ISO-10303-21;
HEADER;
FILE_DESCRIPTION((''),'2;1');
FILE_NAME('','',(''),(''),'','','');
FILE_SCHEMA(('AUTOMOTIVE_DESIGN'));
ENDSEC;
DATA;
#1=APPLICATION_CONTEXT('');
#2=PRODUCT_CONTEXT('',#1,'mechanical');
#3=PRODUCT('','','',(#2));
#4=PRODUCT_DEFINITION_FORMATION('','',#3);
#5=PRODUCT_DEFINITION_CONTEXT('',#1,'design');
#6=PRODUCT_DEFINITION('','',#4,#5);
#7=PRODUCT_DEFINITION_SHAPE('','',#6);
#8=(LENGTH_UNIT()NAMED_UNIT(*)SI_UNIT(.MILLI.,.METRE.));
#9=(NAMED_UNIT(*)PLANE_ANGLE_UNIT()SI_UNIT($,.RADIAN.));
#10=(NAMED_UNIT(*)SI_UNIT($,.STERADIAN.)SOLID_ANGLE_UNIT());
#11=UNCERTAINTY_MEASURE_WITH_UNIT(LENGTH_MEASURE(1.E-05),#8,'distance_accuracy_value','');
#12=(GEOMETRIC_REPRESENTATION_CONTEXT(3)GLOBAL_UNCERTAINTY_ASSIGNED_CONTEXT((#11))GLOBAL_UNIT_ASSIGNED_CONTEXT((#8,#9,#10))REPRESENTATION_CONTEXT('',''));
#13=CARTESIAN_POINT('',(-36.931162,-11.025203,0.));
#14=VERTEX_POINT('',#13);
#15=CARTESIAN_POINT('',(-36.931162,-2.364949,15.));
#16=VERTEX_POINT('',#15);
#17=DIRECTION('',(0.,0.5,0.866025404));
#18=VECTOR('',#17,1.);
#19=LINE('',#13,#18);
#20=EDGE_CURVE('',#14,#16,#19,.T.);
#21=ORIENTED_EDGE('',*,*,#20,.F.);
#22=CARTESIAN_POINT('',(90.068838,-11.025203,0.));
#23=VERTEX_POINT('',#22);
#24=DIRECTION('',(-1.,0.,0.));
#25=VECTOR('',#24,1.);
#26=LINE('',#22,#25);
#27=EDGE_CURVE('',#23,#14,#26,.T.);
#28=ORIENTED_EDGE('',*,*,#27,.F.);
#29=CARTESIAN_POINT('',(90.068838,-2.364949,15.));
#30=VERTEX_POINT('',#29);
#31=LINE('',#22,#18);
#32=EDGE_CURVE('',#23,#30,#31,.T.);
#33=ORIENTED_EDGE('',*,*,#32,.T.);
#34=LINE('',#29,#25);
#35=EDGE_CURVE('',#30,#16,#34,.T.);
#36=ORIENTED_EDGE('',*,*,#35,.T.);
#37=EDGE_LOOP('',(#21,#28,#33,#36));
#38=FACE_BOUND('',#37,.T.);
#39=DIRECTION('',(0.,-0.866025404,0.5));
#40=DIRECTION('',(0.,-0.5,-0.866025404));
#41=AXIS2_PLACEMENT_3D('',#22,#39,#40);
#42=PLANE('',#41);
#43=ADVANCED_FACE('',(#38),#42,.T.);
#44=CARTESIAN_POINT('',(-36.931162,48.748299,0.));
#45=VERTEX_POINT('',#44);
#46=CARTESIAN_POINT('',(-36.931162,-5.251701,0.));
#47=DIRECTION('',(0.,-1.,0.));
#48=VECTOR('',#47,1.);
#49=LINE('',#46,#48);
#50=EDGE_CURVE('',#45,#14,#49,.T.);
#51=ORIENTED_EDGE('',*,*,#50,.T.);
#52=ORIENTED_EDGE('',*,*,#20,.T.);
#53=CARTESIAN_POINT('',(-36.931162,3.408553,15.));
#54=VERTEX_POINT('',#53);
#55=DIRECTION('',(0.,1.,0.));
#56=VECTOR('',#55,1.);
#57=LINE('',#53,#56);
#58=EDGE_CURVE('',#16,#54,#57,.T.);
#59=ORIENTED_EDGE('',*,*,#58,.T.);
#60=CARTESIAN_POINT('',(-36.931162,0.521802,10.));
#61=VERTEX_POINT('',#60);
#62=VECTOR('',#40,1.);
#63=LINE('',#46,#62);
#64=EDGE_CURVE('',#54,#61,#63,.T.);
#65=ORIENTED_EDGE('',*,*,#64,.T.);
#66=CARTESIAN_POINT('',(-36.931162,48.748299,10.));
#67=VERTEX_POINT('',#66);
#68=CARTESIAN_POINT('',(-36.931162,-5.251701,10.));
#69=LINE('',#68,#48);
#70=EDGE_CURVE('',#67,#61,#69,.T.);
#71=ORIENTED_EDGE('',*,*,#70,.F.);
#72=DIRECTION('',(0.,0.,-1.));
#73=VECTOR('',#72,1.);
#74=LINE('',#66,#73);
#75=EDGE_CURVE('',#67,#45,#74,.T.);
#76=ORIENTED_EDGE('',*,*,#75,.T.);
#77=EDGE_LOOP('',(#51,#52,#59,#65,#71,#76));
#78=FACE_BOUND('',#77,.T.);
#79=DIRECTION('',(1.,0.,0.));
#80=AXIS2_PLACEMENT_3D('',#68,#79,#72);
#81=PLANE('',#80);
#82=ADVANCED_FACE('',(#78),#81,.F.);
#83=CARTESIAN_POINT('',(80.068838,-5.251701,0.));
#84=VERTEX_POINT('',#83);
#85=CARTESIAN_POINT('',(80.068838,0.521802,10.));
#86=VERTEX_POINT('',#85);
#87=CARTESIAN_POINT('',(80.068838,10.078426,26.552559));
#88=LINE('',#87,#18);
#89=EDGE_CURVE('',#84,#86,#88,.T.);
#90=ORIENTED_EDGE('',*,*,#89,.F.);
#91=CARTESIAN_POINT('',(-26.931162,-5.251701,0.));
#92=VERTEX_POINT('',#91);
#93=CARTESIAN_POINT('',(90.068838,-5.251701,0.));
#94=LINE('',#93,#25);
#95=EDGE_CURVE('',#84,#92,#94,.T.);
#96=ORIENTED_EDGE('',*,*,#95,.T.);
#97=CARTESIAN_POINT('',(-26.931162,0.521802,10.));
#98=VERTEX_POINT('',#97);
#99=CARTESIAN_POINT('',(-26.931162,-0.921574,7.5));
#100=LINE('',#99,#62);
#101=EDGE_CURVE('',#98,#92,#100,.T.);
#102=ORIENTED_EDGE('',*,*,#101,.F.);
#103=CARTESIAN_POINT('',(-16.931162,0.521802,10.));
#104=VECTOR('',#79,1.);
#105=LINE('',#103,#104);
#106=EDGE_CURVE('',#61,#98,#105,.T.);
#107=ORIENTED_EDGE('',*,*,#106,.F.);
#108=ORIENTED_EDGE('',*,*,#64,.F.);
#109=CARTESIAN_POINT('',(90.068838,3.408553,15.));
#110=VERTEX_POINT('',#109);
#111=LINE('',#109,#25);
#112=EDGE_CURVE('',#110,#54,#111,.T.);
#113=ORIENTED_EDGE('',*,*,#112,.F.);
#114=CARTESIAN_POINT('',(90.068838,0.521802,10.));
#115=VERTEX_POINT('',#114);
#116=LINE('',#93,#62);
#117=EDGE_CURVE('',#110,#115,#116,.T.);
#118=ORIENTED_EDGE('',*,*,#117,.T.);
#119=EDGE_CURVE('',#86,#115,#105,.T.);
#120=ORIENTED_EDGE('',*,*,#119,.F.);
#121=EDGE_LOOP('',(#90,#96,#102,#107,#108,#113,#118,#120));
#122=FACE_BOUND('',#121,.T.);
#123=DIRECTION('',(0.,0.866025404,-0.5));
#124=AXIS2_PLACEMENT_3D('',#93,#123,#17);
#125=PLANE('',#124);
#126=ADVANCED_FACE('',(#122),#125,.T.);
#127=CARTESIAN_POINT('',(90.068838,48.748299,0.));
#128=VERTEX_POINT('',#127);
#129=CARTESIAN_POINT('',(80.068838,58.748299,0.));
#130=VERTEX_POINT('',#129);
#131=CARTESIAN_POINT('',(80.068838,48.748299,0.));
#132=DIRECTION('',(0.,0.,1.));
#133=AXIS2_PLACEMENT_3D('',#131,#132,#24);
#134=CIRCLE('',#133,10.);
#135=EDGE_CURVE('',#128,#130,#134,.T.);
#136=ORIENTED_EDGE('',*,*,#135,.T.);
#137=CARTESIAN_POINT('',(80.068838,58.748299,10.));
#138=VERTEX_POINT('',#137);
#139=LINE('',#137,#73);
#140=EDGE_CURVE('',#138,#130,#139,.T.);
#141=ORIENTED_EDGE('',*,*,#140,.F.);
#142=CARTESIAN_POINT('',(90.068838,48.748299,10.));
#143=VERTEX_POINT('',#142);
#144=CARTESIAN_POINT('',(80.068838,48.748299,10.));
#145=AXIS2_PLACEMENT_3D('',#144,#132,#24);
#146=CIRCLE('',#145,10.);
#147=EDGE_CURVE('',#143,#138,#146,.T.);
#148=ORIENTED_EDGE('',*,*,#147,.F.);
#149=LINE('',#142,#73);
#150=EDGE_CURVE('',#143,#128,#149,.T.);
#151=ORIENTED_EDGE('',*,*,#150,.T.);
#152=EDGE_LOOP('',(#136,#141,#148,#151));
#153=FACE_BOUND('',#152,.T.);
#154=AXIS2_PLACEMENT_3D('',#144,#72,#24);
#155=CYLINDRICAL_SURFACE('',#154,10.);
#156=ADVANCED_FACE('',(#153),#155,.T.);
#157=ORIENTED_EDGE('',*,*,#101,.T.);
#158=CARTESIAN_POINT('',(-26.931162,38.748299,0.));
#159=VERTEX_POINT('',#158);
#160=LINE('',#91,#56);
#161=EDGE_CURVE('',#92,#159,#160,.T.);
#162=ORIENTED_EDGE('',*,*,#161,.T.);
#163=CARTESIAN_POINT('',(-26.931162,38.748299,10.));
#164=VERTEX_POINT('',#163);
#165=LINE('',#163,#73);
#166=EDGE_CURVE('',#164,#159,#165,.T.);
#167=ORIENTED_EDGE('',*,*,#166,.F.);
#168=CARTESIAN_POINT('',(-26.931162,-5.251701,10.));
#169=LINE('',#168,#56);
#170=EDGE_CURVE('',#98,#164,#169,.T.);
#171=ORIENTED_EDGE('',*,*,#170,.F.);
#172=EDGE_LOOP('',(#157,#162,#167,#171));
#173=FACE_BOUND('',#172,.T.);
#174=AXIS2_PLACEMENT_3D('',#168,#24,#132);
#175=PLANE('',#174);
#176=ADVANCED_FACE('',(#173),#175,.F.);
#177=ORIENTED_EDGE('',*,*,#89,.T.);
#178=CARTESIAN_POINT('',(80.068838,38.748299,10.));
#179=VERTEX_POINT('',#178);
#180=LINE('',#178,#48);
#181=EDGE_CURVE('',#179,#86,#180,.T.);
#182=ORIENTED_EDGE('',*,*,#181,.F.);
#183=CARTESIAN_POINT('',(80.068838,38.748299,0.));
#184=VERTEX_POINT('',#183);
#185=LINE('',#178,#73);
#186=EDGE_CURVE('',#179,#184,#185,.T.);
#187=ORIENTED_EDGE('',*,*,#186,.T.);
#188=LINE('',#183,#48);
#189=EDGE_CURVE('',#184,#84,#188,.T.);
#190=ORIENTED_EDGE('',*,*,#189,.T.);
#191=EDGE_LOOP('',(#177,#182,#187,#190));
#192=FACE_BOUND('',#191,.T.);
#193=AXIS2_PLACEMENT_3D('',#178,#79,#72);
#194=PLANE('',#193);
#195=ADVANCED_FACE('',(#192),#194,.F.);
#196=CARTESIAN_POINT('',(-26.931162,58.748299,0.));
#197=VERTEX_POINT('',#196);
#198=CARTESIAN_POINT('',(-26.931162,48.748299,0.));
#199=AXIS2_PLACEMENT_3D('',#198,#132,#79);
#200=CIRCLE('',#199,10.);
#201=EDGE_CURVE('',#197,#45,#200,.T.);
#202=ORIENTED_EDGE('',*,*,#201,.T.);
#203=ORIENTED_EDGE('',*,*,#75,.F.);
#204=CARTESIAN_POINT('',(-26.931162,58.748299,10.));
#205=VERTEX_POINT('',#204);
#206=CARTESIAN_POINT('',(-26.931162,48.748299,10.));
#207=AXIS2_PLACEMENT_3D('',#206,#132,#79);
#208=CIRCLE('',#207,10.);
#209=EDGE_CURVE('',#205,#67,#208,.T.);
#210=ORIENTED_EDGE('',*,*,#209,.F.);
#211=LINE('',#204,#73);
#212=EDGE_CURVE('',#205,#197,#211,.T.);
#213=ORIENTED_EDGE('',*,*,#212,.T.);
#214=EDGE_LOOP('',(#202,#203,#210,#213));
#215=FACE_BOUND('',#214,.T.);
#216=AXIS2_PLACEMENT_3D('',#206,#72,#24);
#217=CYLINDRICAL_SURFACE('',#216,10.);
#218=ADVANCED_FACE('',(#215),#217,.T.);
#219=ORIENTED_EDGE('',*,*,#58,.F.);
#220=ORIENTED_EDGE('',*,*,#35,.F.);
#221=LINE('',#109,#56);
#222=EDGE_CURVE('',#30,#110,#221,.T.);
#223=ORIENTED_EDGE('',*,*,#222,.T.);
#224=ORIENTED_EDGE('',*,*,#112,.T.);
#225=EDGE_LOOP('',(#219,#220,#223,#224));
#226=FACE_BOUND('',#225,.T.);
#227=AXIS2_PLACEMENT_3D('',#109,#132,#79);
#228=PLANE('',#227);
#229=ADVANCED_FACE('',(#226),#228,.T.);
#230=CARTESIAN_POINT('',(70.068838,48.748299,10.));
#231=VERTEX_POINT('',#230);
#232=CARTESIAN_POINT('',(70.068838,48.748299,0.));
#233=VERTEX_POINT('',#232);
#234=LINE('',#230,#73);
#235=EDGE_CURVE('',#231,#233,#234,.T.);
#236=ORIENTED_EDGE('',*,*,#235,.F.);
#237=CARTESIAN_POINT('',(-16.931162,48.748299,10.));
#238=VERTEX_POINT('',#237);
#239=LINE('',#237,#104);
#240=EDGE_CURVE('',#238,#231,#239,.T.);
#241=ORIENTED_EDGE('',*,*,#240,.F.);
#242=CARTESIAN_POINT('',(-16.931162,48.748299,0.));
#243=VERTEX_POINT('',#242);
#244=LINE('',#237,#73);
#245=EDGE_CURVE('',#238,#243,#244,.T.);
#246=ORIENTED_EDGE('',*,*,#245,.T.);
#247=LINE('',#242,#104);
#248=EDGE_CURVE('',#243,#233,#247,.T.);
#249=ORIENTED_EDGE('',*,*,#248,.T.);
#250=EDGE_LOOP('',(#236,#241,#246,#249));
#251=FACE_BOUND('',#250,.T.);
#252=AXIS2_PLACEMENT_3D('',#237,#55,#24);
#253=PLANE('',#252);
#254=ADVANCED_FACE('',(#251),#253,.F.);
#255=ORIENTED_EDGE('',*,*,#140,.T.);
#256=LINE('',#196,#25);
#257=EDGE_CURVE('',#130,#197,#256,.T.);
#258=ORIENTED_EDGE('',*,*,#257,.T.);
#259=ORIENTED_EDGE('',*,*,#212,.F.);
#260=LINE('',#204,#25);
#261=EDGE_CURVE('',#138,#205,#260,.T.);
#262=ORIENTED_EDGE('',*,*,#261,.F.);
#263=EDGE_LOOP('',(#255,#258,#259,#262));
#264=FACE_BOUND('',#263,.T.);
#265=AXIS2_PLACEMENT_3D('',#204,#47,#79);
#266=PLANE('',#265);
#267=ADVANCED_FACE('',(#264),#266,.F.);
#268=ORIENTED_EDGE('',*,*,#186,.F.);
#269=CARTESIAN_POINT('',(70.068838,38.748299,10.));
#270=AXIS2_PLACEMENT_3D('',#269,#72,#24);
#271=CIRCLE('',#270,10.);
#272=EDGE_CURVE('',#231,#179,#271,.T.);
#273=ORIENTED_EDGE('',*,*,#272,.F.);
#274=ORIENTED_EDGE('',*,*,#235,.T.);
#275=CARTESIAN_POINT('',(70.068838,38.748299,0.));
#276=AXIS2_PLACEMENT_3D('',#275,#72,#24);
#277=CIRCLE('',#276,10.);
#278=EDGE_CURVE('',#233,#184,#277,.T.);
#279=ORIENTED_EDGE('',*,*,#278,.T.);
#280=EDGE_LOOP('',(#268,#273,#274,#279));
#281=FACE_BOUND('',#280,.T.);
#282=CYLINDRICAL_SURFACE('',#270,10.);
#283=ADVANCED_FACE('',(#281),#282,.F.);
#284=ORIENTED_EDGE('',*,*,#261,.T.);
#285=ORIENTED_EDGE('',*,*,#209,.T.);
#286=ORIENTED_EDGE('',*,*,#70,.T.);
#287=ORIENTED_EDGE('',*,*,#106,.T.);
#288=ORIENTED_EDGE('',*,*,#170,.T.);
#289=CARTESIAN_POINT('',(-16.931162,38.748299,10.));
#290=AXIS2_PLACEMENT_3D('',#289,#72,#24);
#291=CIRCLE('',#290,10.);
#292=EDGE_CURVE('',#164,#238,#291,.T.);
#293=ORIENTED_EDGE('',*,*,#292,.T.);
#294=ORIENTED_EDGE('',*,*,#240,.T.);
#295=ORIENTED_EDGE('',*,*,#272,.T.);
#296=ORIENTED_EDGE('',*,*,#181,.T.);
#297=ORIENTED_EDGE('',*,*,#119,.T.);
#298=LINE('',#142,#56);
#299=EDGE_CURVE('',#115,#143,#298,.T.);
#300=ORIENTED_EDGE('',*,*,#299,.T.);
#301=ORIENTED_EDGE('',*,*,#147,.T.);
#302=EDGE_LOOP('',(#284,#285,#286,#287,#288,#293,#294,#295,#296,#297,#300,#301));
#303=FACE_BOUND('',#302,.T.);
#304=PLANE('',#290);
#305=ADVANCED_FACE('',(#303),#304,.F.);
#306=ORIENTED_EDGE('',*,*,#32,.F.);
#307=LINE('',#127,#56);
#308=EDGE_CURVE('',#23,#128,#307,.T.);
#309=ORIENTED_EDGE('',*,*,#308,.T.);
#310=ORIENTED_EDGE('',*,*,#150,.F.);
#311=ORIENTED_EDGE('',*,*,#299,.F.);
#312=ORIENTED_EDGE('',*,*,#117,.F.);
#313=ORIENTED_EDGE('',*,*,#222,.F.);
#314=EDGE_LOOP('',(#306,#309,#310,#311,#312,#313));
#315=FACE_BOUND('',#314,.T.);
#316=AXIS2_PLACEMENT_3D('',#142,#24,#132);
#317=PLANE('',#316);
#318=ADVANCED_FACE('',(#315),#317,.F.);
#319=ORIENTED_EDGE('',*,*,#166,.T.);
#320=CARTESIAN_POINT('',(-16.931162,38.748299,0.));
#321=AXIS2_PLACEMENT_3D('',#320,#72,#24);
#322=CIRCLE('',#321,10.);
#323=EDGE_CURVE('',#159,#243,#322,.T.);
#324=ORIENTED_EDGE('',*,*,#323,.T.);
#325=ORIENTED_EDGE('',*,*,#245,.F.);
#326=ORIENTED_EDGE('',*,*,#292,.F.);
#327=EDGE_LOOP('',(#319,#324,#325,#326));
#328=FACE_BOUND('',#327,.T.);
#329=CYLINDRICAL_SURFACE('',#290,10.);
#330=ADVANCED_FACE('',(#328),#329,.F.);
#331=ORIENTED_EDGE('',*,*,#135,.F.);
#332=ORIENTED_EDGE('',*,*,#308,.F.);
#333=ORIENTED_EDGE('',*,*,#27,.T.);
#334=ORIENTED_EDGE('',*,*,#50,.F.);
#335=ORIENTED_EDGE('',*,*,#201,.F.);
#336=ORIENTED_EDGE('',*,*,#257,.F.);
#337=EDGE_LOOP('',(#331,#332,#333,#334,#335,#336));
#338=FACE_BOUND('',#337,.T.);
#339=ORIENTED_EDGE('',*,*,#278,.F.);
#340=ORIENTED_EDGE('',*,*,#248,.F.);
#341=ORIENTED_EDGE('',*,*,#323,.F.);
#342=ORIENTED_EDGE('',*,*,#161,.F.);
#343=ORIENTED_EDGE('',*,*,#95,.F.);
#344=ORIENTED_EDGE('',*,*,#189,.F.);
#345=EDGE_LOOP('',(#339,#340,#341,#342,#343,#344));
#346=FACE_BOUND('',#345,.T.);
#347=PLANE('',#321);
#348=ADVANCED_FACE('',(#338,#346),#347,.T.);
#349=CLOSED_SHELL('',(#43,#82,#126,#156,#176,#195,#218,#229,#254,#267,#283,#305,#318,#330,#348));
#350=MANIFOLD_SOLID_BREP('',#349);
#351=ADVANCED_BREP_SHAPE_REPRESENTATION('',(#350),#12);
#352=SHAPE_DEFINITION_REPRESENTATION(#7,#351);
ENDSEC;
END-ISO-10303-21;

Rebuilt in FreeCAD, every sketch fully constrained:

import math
import FreeCAD as App
import Part
import Sketcher
Q = App.Units.Quantity

doc = App.newDocument("Part")
body = doc.addObject("PartDesign::Body", "Body")

sketch1 = doc.addObject("Sketcher::SketchObject", "Sketch")
body.addObject(sketch1)
sketch1.AttachmentSupport = (doc.XY_Plane, [""])
sketch1.MapMode = "FlatFace"
sketch1.addGeometry([
    Part.LineSegment(App.Vector(-37, 49, 0), App.Vector(-37, -5, 0)),
    Part.LineSegment(App.Vector(-37, -5, 0), App.Vector(-27, -5, 0)),
    Part.LineSegment(App.Vector(-27, -5, 0), App.Vector(-27, 39, 0)),
    Part.ArcOfCircle(Part.Circle(App.Vector(-17, 39, 0), App.Vector(0, 0, 1), 10), math.radians(90), math.radians(180)),
    Part.LineSegment(App.Vector(-17, 49, 0), App.Vector(70, 49, 0)),
    Part.ArcOfCircle(Part.Circle(App.Vector(70, 39, 0), App.Vector(0, 0, 1), 10), math.radians(0), math.radians(90)),
    Part.LineSegment(App.Vector(80, 39, 0), App.Vector(80, -5, 0)),
    Part.LineSegment(App.Vector(80, -5, 0), App.Vector(90, -5, 0)),
    Part.LineSegment(App.Vector(90, -5, 0), App.Vector(90, 49, 0)),
    Part.ArcOfCircle(Part.Circle(App.Vector(80, 49, 0), App.Vector(0, 0, 1), 10), math.radians(0), math.radians(90)),
    Part.LineSegment(App.Vector(80, 59, 0), App.Vector(-27, 59, 0)),
    Part.ArcOfCircle(Part.Circle(App.Vector(-27, 49, 0), App.Vector(0, 0, 1), 10), math.radians(90), math.radians(180)),
], False)
sketch1.addConstraint([
    Sketcher.Constraint("Coincident", 0, 2, 1, 1),
    Sketcher.Constraint("Coincident", 1, 2, 2, 1),
    Sketcher.Constraint("Tangent", 2, 2, 3, 2),
    Sketcher.Constraint("Tangent", 3, 1, 4, 1),
    Sketcher.Constraint("Tangent", 4, 2, 5, 2),
    Sketcher.Constraint("Tangent", 5, 1, 6, 1),
    Sketcher.Constraint("Coincident", 6, 2, 7, 1),
    Sketcher.Constraint("Coincident", 7, 2, 8, 1),
    Sketcher.Constraint("Tangent", 8, 2, 9, 1),
    Sketcher.Constraint("Tangent", 9, 2, 10, 1),
    Sketcher.Constraint("Tangent", 10, 2, 11, 1),
    Sketcher.Constraint("Tangent", 11, 2, 0, 1),
    Sketcher.Constraint("Vertical", 0),
    Sketcher.Constraint("Horizontal", 1),
    Sketcher.Constraint("Vertical", 2),
    Sketcher.Constraint("Horizontal", 4),
    Sketcher.Constraint("Vertical", 6),
    Sketcher.Constraint("Horizontal", 7),
    Sketcher.Constraint("Vertical", 8),
    Sketcher.Constraint("Horizontal", 10),
    Sketcher.Constraint("Equal", 3, 5),
    Sketcher.Constraint("Equal", 5, 9),
    Sketcher.Constraint("Equal", 9, 11),
    Sketcher.Constraint("Horizontal", 11, 3, 3, 1),
    Sketcher.Constraint("Horizontal", 1, 2, 6, 2),
    Sketcher.Constraint("Vertical", 11, 3, 1, 2),
    Sketcher.Constraint("Vertical", 9, 3, 5, 1),
    Sketcher.Constraint("Radius", 3, 10.0),
    Sketcher.Constraint("DistanceX", 4, 1, 4, 2, 87.0),
    Sketcher.Constraint("DistanceY", 0, 2, 0, 1, 54.0),
    Sketcher.Constraint("DistanceY", -1, 1, 3, 3, 38.748299),
    Sketcher.Constraint("DistanceX", -1, 1, 5, 3, 70.068838),
])
pad1 = doc.addObject("PartDesign::Pad", "Pad")
body.addObject(pad1)
pad1.Profile = sketch1
pad1.Length = 10

sketch2 = doc.addObject("Sketcher::SketchObject", "Sketch001")
body.addObject(sketch2)
sketch2.AttachmentSupport = (doc.YZ_Plane, [""])
sketch2.MapMode = "FlatFace"
sketch2.AttachmentOffset = App.Placement(App.Vector(0, 0, -36.931162), App.Rotation())
sketch2.addGeometry([
    Part.LineSegment(App.Vector(-11, 0, 0), App.Vector(-2, 15, 0)),
    Part.LineSegment(App.Vector(-2, 15, 0), App.Vector(3, 15, 0)),
    Part.LineSegment(App.Vector(3, 15, 0), App.Vector(-5, 0, 0)),
    Part.LineSegment(App.Vector(-5, 0, 0), App.Vector(-11, 0, 0)),
], False)
sketch2.addConstraint([
    Sketcher.Constraint("Coincident", 0, 2, 1, 1),
    Sketcher.Constraint("Coincident", 1, 2, 2, 1),
    Sketcher.Constraint("Coincident", 2, 2, 3, 1),
    Sketcher.Constraint("Coincident", 3, 2, 0, 1),
    Sketcher.Constraint("Horizontal", 1),
    Sketcher.Constraint("Horizontal", 3),
    Sketcher.Constraint("PointOnObject", 2, 2, -1),
    Sketcher.Constraint("Parallel", 0, 2),
    Sketcher.Constraint("Angle", 0, Q("60 deg")),
    Sketcher.Constraint("DistanceY", -1, 1, 0, 2, 15.0),
    Sketcher.Constraint("DistanceX", 2, 2, -1, 1, 5.251701),
    Sketcher.Constraint("DistanceX", 1, 1, 1, 2, 5.773503),
])
pad2 = doc.addObject("PartDesign::Pad", "Pad001")
body.addObject(pad2)
pad2.Profile = sketch2
pad2.Length = 127

doc.recompute()
